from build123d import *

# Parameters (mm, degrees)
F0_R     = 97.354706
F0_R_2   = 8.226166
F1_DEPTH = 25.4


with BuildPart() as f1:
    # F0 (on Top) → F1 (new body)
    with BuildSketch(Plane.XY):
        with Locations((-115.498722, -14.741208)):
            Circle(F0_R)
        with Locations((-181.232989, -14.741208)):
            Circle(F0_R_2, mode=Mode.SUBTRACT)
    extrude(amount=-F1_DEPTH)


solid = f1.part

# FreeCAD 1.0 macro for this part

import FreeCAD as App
import Part
import Sketcher
from FreeCAD import Vector
Q = App.Units.Quantity

doc = App.newDocument("Part")
body = doc.addObject("PartDesign::Body", "Body")

sketch1 = body.newObject("Sketcher::SketchObject", "Sketch")
sketch1.AttachmentSupport = (doc.getObject("XY_Plane"), [""])
sketch1.MapMode = "FlatFace"
sketch1.addGeometry(Part.Circle(Vector(-115.498722, -14.741208, 0), Vector(0, 0, 1), 97.354706), False)
sketch1.addGeometry(Part.Circle(Vector(-181.232989, -14.741208, 0), Vector(0, 0, 1), 8.226166), False)
sketch1.addConstraint(Sketcher.Constraint("Horizontal", 0, 3, 1, 3))
sketch1.addConstraint(Sketcher.Constraint("Diameter", 0, Q("194.709412 mm")))
sketch1.addConstraint(Sketcher.Constraint("Diameter", 1, Q("16.452332 mm")))
sketch1.addConstraint(Sketcher.Constraint("DistanceX", 0, 3, -1, 1, Q("115.498722 mm")))
sketch1.addConstraint(Sketcher.Constraint("DistanceX", 1, 3, -1, 1, Q("181.232989 mm")))
sketch1.addConstraint(Sketcher.Constraint("DistanceY", 0, 3, -1, 1, Q("14.741208 mm")))
pad1 = body.newObject("PartDesign::Pad", "Pad")
pad1.Profile = sketch1
pad1.Length = Q("1 in")
pad1.Reversed = True

doc.recompute()
